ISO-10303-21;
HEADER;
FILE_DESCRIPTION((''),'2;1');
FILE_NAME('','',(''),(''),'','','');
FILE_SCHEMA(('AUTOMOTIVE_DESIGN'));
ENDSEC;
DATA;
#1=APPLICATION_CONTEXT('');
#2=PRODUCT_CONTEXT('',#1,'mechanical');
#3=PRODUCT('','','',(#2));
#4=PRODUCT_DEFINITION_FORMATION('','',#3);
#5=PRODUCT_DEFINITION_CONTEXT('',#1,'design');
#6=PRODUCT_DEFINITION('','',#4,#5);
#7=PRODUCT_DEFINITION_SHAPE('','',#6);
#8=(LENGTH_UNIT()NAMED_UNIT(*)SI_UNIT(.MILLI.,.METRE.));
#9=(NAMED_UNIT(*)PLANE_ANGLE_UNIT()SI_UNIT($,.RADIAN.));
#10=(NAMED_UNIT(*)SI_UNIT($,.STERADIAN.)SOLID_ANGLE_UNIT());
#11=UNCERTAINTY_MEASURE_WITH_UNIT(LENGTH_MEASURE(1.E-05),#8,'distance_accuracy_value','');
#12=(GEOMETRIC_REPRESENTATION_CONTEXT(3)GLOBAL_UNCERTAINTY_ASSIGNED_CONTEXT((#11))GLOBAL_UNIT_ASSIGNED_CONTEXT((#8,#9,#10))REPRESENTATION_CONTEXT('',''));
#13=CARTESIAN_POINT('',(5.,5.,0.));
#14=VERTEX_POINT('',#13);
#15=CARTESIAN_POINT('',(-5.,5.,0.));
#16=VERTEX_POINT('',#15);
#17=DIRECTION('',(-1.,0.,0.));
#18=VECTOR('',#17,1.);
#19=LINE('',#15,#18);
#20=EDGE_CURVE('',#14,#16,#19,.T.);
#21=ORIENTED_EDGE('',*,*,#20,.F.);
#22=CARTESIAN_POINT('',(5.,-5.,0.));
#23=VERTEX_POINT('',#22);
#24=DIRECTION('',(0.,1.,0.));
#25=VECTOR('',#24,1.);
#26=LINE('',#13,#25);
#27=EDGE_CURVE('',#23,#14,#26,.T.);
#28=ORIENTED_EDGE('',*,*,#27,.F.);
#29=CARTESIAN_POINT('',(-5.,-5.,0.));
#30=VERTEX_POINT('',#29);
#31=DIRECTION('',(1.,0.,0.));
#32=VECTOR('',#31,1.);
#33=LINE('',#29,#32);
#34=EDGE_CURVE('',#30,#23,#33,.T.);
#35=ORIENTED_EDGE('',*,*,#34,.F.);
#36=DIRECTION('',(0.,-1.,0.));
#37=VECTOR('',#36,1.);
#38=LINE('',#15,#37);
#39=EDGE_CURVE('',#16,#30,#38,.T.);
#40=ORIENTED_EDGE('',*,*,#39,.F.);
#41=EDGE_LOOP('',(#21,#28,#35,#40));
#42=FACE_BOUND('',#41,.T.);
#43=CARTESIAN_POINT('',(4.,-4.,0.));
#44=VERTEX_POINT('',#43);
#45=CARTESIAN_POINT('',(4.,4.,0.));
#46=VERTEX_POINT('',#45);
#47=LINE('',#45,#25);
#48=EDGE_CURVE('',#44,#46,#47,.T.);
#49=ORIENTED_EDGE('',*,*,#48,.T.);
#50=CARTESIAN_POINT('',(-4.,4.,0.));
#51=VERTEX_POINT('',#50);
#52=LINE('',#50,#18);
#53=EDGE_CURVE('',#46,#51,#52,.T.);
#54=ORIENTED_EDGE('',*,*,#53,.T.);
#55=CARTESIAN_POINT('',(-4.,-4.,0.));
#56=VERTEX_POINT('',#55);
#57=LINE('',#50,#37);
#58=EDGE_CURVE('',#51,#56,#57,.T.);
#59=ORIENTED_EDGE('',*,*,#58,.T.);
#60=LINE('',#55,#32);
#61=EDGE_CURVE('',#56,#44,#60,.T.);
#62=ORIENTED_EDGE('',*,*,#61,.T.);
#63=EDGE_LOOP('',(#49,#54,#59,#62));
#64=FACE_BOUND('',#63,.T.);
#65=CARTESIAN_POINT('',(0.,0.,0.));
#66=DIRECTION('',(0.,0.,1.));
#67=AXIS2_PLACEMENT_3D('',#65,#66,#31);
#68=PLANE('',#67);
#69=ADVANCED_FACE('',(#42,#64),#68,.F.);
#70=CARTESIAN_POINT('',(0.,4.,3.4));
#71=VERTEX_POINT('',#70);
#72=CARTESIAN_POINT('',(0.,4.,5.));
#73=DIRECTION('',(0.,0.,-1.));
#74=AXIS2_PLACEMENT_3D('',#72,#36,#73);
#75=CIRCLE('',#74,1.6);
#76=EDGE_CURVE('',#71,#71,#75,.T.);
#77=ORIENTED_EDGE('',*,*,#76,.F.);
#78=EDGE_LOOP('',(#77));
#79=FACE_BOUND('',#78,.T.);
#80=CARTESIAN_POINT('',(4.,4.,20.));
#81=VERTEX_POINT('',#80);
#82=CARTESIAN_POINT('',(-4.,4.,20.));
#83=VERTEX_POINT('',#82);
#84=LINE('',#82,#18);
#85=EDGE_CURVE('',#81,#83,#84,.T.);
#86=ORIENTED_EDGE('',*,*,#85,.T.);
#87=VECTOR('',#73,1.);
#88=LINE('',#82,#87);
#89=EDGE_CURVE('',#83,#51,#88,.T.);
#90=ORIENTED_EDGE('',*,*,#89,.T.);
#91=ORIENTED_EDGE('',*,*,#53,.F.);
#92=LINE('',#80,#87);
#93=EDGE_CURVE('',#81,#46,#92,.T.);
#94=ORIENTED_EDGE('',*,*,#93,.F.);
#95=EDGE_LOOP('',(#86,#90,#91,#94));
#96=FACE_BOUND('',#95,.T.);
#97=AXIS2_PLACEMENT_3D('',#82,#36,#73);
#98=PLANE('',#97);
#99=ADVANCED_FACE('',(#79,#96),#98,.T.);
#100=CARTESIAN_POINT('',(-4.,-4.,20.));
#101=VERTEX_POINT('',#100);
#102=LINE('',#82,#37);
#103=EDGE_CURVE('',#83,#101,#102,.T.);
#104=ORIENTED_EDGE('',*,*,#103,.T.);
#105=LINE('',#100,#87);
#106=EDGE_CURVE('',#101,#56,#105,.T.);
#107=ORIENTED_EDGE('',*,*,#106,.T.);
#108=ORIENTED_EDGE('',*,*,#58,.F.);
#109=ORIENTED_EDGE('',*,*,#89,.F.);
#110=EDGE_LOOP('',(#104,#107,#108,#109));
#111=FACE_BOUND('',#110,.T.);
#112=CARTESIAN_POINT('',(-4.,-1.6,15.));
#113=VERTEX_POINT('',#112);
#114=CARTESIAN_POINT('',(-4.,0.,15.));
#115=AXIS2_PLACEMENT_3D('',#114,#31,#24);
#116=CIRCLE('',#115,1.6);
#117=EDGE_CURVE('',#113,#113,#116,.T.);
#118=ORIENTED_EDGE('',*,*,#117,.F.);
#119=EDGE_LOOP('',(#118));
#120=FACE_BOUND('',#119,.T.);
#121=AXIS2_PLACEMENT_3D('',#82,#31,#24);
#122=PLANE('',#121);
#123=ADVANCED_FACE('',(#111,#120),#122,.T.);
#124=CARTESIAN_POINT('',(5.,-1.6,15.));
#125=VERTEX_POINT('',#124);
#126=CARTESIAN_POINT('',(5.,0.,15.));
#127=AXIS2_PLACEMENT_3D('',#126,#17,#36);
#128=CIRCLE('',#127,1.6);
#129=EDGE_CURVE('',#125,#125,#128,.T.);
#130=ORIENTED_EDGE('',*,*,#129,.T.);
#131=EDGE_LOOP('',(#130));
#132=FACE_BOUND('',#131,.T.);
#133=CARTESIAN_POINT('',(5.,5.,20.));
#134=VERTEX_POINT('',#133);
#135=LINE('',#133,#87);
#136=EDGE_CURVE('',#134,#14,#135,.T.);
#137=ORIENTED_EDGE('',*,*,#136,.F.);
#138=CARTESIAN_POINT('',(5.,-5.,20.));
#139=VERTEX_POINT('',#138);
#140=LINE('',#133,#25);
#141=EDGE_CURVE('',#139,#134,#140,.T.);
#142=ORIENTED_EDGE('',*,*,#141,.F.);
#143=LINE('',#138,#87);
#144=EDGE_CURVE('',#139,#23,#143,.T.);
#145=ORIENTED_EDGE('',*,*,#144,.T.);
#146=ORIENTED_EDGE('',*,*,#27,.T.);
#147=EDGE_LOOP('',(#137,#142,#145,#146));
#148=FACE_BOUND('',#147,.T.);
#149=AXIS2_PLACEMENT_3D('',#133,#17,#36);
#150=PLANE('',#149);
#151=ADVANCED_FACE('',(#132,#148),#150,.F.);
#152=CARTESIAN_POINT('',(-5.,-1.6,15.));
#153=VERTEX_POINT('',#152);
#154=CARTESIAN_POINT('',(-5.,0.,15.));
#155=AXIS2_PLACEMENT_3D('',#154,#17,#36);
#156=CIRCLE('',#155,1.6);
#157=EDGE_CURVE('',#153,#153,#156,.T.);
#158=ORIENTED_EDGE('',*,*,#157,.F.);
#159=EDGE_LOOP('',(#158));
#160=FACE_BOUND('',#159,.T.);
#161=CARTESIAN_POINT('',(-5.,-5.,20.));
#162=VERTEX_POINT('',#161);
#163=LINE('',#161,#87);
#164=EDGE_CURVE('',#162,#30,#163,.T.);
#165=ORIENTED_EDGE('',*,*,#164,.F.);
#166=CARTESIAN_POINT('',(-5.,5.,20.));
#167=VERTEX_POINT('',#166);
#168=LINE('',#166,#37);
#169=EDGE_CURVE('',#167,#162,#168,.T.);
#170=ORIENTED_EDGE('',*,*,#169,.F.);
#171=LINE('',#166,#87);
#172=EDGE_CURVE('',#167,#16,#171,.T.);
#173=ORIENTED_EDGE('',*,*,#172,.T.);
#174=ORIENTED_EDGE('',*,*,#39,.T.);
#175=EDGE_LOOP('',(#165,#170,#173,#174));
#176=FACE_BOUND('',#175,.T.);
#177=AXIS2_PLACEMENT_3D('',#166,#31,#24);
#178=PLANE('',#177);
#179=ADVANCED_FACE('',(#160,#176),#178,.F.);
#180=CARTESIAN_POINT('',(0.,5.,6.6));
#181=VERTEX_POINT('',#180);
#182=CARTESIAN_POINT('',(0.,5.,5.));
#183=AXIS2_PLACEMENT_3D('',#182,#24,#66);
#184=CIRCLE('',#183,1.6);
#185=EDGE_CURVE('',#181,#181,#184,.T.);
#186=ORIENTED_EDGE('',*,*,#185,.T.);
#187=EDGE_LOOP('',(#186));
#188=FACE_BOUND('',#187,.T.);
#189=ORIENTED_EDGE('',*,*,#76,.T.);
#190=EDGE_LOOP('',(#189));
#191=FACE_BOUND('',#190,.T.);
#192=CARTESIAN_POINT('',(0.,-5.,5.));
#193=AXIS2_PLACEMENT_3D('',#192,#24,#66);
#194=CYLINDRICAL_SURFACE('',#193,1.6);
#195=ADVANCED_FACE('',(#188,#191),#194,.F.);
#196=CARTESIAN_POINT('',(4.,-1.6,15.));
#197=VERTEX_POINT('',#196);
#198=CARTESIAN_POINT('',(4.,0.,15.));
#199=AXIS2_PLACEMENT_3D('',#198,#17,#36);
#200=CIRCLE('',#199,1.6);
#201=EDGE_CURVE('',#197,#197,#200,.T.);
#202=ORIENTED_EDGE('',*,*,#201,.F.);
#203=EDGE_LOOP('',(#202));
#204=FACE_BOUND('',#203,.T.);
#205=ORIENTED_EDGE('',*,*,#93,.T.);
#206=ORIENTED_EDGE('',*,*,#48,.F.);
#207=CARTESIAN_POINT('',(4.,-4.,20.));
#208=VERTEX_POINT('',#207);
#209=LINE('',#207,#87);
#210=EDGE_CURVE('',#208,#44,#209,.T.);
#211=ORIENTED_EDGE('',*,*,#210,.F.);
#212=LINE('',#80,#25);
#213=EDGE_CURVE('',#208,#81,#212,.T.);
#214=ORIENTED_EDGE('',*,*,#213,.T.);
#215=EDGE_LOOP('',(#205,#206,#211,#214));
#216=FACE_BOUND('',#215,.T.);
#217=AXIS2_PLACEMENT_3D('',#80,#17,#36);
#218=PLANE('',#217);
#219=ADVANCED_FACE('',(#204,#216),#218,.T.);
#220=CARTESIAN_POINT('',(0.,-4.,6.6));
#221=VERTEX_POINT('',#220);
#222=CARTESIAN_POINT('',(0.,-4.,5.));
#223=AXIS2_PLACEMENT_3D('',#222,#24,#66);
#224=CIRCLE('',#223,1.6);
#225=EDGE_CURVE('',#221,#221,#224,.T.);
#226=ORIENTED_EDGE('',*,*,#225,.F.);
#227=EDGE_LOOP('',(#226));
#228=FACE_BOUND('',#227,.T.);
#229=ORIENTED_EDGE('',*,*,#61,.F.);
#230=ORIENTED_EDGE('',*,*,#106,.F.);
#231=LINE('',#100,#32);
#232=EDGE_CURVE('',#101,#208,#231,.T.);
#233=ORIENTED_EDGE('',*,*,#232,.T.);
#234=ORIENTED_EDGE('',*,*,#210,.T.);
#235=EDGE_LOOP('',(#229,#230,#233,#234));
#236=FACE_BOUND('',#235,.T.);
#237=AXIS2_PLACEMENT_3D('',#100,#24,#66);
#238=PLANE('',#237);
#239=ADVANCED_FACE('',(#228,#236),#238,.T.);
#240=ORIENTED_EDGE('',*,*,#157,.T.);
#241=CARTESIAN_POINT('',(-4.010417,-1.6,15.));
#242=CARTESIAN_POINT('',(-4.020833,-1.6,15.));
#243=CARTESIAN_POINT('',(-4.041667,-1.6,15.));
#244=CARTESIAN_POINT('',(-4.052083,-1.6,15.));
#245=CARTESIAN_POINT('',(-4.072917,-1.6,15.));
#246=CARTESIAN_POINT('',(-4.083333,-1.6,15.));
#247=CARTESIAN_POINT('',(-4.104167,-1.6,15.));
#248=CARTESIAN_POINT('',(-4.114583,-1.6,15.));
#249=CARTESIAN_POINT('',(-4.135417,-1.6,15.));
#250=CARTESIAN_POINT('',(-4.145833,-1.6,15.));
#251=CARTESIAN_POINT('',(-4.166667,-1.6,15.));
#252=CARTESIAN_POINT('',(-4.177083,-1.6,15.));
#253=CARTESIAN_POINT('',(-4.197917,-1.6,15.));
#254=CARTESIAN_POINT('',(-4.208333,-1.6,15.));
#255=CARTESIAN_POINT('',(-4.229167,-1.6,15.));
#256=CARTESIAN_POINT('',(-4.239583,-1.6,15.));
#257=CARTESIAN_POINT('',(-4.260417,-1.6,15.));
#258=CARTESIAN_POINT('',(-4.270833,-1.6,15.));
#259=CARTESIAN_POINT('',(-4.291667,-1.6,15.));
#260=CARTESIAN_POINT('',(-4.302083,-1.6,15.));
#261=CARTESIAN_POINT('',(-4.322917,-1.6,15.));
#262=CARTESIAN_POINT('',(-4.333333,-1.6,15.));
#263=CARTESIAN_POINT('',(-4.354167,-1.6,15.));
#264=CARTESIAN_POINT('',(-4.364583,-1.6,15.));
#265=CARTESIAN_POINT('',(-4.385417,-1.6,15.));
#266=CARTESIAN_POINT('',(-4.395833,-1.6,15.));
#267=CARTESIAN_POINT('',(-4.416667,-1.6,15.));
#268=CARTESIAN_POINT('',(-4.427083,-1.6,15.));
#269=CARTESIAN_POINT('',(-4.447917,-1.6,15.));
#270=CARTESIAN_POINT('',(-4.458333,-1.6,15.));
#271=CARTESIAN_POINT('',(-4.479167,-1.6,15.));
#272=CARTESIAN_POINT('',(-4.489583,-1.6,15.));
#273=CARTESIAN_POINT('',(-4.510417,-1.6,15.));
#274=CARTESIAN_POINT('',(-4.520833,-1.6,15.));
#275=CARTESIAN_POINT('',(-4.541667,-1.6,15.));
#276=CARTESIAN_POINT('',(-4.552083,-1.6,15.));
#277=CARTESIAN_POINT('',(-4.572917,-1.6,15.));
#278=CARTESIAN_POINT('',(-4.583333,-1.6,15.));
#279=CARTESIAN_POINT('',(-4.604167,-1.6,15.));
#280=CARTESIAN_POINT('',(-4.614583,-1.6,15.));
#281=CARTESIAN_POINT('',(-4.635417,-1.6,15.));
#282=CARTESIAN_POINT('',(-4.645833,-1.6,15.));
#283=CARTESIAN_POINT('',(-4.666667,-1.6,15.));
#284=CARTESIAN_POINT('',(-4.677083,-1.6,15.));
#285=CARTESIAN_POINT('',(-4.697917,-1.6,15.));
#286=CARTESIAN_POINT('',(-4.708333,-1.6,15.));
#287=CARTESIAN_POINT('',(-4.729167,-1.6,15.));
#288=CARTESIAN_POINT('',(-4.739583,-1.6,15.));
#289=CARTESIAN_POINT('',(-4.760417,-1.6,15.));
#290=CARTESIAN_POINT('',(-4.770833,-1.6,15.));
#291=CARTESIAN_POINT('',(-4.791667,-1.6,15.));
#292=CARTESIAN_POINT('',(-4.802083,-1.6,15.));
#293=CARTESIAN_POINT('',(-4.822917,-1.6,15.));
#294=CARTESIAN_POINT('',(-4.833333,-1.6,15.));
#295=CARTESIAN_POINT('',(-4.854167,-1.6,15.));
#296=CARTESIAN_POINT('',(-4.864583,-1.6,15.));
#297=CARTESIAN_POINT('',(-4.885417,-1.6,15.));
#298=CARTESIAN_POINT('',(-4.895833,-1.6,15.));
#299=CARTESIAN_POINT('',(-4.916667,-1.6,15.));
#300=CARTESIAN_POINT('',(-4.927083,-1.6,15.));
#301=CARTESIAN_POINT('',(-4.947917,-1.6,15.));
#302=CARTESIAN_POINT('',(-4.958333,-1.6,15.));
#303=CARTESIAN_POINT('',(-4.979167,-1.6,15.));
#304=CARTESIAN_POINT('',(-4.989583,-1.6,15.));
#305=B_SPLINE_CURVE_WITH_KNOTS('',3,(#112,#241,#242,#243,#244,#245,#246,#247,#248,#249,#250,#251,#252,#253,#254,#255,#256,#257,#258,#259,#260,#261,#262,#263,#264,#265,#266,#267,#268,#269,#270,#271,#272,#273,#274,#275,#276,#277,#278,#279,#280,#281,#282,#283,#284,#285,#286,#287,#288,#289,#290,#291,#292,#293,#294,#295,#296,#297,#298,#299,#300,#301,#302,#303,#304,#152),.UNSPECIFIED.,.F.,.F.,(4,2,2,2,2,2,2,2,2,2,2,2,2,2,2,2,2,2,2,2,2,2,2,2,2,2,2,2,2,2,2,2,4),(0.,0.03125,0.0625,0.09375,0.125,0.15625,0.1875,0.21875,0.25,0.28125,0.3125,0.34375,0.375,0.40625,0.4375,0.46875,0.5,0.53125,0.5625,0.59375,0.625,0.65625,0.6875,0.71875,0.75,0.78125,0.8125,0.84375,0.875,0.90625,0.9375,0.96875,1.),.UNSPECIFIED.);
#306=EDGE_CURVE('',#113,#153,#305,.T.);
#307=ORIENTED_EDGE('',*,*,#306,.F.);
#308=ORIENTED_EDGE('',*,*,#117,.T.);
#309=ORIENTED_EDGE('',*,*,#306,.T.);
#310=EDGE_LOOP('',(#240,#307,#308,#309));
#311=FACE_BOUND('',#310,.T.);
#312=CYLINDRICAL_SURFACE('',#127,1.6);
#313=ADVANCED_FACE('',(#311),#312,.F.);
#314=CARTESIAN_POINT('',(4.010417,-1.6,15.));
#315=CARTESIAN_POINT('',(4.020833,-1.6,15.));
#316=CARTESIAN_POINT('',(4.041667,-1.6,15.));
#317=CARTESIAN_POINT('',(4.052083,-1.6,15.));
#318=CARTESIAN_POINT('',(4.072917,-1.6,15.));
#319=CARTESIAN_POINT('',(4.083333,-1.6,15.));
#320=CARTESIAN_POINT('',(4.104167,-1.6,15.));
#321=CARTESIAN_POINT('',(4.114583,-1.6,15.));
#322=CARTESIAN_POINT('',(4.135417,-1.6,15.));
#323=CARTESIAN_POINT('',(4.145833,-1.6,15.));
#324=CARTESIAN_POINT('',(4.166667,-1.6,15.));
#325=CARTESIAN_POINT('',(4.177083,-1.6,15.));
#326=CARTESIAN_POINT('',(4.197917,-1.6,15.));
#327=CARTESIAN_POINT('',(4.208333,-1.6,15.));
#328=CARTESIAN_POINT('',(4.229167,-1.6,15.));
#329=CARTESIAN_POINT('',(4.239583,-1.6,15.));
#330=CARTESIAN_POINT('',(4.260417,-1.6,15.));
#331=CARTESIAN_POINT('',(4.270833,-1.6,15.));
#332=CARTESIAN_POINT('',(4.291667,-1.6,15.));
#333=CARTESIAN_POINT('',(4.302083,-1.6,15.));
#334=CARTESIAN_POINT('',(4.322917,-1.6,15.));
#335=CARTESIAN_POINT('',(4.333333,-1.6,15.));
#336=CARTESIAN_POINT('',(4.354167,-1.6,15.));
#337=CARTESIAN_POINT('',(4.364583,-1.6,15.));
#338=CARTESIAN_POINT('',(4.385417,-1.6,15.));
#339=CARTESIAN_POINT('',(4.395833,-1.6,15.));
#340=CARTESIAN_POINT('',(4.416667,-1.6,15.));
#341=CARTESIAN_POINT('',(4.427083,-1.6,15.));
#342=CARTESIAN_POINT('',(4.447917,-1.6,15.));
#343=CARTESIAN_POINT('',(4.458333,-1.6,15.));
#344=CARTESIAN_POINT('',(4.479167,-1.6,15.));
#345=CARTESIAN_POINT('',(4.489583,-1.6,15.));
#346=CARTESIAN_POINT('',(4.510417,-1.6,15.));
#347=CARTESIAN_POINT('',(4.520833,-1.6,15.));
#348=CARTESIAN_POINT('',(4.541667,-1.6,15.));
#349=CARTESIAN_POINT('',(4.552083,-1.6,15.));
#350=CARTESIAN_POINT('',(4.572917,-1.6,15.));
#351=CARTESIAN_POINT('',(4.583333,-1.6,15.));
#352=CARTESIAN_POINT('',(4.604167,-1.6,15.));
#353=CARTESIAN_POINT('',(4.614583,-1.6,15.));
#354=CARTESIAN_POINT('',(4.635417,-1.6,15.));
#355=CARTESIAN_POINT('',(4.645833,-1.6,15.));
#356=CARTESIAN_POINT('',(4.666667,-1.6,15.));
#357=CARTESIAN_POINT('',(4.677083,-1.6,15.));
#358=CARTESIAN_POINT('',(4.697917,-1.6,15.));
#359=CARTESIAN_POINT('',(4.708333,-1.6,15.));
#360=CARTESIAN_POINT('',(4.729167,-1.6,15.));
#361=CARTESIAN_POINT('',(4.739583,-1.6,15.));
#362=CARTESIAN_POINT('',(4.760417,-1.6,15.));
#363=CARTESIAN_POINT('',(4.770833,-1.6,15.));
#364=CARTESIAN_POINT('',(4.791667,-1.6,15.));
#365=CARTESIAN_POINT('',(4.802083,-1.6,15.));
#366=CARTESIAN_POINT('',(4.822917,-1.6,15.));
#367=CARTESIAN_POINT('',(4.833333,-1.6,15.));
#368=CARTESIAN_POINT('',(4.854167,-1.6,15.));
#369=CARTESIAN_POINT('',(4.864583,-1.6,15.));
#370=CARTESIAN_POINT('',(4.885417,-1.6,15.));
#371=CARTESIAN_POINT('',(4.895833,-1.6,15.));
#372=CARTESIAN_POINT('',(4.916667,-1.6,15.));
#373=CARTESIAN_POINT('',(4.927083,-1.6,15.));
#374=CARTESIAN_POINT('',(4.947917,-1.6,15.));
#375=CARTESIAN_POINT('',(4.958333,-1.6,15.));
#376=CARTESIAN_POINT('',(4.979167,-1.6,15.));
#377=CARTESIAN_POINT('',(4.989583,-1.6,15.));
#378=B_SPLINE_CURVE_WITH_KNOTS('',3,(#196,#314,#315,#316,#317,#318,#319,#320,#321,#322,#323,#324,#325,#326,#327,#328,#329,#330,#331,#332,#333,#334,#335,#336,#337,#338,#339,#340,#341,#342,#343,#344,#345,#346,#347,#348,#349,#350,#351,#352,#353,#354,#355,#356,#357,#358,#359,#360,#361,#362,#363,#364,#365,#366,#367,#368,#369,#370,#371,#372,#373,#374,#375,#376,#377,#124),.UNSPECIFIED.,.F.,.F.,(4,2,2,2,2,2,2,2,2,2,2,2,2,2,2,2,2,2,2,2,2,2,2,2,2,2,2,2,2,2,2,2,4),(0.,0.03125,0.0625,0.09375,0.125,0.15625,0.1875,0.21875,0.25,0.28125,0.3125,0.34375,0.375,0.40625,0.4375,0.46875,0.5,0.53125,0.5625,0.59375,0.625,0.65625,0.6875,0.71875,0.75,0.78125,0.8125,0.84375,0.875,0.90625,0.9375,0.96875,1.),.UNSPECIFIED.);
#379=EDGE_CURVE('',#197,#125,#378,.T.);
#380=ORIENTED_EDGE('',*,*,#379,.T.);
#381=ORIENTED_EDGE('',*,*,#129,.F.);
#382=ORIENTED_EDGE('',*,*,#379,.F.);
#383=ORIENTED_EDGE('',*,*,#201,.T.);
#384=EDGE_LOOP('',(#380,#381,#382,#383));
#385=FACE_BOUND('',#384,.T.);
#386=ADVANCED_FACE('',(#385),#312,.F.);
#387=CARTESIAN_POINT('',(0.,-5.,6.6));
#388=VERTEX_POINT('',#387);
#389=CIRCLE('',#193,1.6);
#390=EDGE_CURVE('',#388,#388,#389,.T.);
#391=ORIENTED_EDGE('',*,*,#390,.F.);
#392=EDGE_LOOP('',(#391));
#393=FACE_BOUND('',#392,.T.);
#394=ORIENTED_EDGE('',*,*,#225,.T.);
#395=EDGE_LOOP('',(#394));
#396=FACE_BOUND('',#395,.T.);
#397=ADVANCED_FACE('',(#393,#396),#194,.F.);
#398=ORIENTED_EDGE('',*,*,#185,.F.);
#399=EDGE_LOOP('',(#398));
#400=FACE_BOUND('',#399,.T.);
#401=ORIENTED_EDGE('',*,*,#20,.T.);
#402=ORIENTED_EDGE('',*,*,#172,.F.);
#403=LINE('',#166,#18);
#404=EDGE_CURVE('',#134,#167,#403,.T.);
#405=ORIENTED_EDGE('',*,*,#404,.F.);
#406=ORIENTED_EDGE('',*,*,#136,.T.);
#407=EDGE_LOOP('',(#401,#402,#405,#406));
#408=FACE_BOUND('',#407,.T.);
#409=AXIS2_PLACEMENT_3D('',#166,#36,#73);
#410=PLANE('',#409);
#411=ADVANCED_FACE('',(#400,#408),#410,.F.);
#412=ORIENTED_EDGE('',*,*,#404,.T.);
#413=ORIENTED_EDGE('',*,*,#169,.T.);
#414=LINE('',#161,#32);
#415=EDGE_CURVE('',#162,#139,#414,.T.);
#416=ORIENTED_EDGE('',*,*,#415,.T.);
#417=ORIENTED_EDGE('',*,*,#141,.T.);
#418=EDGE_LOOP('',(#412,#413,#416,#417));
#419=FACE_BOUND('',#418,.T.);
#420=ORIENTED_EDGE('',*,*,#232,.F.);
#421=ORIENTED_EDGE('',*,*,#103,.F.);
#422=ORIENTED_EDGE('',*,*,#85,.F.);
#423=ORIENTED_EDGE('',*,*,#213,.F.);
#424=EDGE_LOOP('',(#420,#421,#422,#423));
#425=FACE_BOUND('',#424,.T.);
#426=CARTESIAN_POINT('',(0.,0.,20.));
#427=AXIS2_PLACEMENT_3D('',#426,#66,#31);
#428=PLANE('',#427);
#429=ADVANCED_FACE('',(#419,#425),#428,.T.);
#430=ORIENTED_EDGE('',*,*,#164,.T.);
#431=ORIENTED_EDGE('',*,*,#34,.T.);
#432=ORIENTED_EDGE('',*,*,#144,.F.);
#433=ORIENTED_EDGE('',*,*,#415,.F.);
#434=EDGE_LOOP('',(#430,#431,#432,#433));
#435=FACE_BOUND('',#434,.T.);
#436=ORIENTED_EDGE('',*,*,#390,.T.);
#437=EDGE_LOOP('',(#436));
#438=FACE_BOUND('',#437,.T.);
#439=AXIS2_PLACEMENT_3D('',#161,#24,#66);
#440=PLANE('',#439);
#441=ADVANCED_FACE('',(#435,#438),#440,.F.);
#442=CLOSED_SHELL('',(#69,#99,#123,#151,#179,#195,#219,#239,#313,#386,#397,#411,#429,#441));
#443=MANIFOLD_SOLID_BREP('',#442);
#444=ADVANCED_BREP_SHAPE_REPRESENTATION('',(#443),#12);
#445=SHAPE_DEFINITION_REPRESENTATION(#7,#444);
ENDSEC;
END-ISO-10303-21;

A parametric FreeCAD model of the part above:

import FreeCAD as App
import Part
import Sketcher

V = App.Vector
Q = App.Units.Quantity


def add_polygon(sketch, points):
    """Adds a closed chain of lines whose ends are joined by coincident constraints."""
    first, n = sketch.GeometryCount, len(points)
    for a, b in zip(points, points[1:] + points[:1]):
        sketch.addGeometry(Part.LineSegment(App.Vector(*a, 0), App.Vector(*b, 0)), False)
    for i in range(n):
        sketch.addConstraint(Sketcher.Constraint("Coincident", first + i, 2, first + (i + 1) % n, 1))

doc = App.newDocument("Part")
body = doc.addObject("PartDesign::Body", "Body")

# Sketch on XY plane
sketch1 = body.newObject("Sketcher::SketchObject", "Sketch")
sketch1.AttachmentSupport = (doc.getObject("XY_Plane"), [""])
sketch1.MapMode = "FlatFace"
add_polygon(sketch1, [(-5, 5), (-5, -5), (5, -5), (5, 5)])  # lines 0-3
add_polygon(sketch1, [(4, -4), (-4, -4), (-4, 4), (4, 4)])  # lines 4-7
sketch1.addConstraint([
    Sketcher.Constraint("Vertical", 0),
    Sketcher.Constraint("Horizontal", 1),
    Sketcher.Constraint("Vertical", 2),
    Sketcher.Constraint("Horizontal", 3),
    Sketcher.Constraint("Horizontal", 4),
    Sketcher.Constraint("Vertical", 5),
    Sketcher.Constraint("Horizontal", 6),
    Sketcher.Constraint("Vertical", 7),
    Sketcher.Constraint("Symmetric", 0, 2, 2, 2, -1, 1),
    Sketcher.Constraint("Symmetric", 4, 2, 6, 2, -1, 1),
    Sketcher.Constraint("Equal", 3, 0),
    Sketcher.Constraint("Equal", 6, 5),
    Sketcher.Constraint("DistanceX", 1, 1, 1, 2, Q("10 mm")),
    Sketcher.Constraint("DistanceX", 4, 2, 4, 1, Q("8 mm")),
])
pad1 = body.newObject("PartDesign::Pad", "Pad")
pad1.Profile = sketch1
pad1.Length = 20

# Sketch on XZ plane
sketch2 = body.newObject("Sketcher::SketchObject", "Sketch001")
sketch2.AttachmentSupport = (doc.getObject("XZ_Plane"), [""])
sketch2.MapMode = "FlatFace"
sketch2.AttachmentOffset = App.Placement(V(0, 0, -5), App.Rotation())
sketch2.addGeometry(Part.Circle(V(0, 5, 0), V(0, 0, 1), 1.6), False)
sketch2.addConstraint([
    Sketcher.Constraint("PointOnObject", 0, 3, -2),
    Sketcher.Constraint("Diameter", 0, Q("3.2 mm")),
    Sketcher.Constraint("DistanceY", -1, 1, 0, 3, Q("5 mm")),
])
pocket1 = body.newObject("PartDesign::Pocket", "Pocket")
pocket1.Profile = sketch2
pocket1.Type = "ThroughAll"
pocket1.Reversed = True

# Sketch on YZ plane
sketch3 = body.newObject("Sketcher::SketchObject", "Sketch002")
sketch3.AttachmentSupport = (doc.getObject("YZ_Plane"), [""])
sketch3.MapMode = "FlatFace"
sketch3.AttachmentOffset = App.Placement(V(0, 0, -5), App.Rotation())
sketch3.addGeometry(Part.Circle(V(0, 15, 0), V(0, 0, 1), 1.6), False)
sketch3.addConstraint([
    Sketcher.Constraint("PointOnObject", 0, 3, -2),
    Sketcher.Constraint("Diameter", 0, Q("3.2 mm")),
    Sketcher.Constraint("DistanceY", -1, 1, 0, 3, Q("15 mm")),
])
pocket2 = body.newObject("PartDesign::Pocket", "Pocket001")
pocket2.Profile = sketch3
pocket2.Type = "ThroughAll"
pocket2.Reversed = True

doc.recompute()
